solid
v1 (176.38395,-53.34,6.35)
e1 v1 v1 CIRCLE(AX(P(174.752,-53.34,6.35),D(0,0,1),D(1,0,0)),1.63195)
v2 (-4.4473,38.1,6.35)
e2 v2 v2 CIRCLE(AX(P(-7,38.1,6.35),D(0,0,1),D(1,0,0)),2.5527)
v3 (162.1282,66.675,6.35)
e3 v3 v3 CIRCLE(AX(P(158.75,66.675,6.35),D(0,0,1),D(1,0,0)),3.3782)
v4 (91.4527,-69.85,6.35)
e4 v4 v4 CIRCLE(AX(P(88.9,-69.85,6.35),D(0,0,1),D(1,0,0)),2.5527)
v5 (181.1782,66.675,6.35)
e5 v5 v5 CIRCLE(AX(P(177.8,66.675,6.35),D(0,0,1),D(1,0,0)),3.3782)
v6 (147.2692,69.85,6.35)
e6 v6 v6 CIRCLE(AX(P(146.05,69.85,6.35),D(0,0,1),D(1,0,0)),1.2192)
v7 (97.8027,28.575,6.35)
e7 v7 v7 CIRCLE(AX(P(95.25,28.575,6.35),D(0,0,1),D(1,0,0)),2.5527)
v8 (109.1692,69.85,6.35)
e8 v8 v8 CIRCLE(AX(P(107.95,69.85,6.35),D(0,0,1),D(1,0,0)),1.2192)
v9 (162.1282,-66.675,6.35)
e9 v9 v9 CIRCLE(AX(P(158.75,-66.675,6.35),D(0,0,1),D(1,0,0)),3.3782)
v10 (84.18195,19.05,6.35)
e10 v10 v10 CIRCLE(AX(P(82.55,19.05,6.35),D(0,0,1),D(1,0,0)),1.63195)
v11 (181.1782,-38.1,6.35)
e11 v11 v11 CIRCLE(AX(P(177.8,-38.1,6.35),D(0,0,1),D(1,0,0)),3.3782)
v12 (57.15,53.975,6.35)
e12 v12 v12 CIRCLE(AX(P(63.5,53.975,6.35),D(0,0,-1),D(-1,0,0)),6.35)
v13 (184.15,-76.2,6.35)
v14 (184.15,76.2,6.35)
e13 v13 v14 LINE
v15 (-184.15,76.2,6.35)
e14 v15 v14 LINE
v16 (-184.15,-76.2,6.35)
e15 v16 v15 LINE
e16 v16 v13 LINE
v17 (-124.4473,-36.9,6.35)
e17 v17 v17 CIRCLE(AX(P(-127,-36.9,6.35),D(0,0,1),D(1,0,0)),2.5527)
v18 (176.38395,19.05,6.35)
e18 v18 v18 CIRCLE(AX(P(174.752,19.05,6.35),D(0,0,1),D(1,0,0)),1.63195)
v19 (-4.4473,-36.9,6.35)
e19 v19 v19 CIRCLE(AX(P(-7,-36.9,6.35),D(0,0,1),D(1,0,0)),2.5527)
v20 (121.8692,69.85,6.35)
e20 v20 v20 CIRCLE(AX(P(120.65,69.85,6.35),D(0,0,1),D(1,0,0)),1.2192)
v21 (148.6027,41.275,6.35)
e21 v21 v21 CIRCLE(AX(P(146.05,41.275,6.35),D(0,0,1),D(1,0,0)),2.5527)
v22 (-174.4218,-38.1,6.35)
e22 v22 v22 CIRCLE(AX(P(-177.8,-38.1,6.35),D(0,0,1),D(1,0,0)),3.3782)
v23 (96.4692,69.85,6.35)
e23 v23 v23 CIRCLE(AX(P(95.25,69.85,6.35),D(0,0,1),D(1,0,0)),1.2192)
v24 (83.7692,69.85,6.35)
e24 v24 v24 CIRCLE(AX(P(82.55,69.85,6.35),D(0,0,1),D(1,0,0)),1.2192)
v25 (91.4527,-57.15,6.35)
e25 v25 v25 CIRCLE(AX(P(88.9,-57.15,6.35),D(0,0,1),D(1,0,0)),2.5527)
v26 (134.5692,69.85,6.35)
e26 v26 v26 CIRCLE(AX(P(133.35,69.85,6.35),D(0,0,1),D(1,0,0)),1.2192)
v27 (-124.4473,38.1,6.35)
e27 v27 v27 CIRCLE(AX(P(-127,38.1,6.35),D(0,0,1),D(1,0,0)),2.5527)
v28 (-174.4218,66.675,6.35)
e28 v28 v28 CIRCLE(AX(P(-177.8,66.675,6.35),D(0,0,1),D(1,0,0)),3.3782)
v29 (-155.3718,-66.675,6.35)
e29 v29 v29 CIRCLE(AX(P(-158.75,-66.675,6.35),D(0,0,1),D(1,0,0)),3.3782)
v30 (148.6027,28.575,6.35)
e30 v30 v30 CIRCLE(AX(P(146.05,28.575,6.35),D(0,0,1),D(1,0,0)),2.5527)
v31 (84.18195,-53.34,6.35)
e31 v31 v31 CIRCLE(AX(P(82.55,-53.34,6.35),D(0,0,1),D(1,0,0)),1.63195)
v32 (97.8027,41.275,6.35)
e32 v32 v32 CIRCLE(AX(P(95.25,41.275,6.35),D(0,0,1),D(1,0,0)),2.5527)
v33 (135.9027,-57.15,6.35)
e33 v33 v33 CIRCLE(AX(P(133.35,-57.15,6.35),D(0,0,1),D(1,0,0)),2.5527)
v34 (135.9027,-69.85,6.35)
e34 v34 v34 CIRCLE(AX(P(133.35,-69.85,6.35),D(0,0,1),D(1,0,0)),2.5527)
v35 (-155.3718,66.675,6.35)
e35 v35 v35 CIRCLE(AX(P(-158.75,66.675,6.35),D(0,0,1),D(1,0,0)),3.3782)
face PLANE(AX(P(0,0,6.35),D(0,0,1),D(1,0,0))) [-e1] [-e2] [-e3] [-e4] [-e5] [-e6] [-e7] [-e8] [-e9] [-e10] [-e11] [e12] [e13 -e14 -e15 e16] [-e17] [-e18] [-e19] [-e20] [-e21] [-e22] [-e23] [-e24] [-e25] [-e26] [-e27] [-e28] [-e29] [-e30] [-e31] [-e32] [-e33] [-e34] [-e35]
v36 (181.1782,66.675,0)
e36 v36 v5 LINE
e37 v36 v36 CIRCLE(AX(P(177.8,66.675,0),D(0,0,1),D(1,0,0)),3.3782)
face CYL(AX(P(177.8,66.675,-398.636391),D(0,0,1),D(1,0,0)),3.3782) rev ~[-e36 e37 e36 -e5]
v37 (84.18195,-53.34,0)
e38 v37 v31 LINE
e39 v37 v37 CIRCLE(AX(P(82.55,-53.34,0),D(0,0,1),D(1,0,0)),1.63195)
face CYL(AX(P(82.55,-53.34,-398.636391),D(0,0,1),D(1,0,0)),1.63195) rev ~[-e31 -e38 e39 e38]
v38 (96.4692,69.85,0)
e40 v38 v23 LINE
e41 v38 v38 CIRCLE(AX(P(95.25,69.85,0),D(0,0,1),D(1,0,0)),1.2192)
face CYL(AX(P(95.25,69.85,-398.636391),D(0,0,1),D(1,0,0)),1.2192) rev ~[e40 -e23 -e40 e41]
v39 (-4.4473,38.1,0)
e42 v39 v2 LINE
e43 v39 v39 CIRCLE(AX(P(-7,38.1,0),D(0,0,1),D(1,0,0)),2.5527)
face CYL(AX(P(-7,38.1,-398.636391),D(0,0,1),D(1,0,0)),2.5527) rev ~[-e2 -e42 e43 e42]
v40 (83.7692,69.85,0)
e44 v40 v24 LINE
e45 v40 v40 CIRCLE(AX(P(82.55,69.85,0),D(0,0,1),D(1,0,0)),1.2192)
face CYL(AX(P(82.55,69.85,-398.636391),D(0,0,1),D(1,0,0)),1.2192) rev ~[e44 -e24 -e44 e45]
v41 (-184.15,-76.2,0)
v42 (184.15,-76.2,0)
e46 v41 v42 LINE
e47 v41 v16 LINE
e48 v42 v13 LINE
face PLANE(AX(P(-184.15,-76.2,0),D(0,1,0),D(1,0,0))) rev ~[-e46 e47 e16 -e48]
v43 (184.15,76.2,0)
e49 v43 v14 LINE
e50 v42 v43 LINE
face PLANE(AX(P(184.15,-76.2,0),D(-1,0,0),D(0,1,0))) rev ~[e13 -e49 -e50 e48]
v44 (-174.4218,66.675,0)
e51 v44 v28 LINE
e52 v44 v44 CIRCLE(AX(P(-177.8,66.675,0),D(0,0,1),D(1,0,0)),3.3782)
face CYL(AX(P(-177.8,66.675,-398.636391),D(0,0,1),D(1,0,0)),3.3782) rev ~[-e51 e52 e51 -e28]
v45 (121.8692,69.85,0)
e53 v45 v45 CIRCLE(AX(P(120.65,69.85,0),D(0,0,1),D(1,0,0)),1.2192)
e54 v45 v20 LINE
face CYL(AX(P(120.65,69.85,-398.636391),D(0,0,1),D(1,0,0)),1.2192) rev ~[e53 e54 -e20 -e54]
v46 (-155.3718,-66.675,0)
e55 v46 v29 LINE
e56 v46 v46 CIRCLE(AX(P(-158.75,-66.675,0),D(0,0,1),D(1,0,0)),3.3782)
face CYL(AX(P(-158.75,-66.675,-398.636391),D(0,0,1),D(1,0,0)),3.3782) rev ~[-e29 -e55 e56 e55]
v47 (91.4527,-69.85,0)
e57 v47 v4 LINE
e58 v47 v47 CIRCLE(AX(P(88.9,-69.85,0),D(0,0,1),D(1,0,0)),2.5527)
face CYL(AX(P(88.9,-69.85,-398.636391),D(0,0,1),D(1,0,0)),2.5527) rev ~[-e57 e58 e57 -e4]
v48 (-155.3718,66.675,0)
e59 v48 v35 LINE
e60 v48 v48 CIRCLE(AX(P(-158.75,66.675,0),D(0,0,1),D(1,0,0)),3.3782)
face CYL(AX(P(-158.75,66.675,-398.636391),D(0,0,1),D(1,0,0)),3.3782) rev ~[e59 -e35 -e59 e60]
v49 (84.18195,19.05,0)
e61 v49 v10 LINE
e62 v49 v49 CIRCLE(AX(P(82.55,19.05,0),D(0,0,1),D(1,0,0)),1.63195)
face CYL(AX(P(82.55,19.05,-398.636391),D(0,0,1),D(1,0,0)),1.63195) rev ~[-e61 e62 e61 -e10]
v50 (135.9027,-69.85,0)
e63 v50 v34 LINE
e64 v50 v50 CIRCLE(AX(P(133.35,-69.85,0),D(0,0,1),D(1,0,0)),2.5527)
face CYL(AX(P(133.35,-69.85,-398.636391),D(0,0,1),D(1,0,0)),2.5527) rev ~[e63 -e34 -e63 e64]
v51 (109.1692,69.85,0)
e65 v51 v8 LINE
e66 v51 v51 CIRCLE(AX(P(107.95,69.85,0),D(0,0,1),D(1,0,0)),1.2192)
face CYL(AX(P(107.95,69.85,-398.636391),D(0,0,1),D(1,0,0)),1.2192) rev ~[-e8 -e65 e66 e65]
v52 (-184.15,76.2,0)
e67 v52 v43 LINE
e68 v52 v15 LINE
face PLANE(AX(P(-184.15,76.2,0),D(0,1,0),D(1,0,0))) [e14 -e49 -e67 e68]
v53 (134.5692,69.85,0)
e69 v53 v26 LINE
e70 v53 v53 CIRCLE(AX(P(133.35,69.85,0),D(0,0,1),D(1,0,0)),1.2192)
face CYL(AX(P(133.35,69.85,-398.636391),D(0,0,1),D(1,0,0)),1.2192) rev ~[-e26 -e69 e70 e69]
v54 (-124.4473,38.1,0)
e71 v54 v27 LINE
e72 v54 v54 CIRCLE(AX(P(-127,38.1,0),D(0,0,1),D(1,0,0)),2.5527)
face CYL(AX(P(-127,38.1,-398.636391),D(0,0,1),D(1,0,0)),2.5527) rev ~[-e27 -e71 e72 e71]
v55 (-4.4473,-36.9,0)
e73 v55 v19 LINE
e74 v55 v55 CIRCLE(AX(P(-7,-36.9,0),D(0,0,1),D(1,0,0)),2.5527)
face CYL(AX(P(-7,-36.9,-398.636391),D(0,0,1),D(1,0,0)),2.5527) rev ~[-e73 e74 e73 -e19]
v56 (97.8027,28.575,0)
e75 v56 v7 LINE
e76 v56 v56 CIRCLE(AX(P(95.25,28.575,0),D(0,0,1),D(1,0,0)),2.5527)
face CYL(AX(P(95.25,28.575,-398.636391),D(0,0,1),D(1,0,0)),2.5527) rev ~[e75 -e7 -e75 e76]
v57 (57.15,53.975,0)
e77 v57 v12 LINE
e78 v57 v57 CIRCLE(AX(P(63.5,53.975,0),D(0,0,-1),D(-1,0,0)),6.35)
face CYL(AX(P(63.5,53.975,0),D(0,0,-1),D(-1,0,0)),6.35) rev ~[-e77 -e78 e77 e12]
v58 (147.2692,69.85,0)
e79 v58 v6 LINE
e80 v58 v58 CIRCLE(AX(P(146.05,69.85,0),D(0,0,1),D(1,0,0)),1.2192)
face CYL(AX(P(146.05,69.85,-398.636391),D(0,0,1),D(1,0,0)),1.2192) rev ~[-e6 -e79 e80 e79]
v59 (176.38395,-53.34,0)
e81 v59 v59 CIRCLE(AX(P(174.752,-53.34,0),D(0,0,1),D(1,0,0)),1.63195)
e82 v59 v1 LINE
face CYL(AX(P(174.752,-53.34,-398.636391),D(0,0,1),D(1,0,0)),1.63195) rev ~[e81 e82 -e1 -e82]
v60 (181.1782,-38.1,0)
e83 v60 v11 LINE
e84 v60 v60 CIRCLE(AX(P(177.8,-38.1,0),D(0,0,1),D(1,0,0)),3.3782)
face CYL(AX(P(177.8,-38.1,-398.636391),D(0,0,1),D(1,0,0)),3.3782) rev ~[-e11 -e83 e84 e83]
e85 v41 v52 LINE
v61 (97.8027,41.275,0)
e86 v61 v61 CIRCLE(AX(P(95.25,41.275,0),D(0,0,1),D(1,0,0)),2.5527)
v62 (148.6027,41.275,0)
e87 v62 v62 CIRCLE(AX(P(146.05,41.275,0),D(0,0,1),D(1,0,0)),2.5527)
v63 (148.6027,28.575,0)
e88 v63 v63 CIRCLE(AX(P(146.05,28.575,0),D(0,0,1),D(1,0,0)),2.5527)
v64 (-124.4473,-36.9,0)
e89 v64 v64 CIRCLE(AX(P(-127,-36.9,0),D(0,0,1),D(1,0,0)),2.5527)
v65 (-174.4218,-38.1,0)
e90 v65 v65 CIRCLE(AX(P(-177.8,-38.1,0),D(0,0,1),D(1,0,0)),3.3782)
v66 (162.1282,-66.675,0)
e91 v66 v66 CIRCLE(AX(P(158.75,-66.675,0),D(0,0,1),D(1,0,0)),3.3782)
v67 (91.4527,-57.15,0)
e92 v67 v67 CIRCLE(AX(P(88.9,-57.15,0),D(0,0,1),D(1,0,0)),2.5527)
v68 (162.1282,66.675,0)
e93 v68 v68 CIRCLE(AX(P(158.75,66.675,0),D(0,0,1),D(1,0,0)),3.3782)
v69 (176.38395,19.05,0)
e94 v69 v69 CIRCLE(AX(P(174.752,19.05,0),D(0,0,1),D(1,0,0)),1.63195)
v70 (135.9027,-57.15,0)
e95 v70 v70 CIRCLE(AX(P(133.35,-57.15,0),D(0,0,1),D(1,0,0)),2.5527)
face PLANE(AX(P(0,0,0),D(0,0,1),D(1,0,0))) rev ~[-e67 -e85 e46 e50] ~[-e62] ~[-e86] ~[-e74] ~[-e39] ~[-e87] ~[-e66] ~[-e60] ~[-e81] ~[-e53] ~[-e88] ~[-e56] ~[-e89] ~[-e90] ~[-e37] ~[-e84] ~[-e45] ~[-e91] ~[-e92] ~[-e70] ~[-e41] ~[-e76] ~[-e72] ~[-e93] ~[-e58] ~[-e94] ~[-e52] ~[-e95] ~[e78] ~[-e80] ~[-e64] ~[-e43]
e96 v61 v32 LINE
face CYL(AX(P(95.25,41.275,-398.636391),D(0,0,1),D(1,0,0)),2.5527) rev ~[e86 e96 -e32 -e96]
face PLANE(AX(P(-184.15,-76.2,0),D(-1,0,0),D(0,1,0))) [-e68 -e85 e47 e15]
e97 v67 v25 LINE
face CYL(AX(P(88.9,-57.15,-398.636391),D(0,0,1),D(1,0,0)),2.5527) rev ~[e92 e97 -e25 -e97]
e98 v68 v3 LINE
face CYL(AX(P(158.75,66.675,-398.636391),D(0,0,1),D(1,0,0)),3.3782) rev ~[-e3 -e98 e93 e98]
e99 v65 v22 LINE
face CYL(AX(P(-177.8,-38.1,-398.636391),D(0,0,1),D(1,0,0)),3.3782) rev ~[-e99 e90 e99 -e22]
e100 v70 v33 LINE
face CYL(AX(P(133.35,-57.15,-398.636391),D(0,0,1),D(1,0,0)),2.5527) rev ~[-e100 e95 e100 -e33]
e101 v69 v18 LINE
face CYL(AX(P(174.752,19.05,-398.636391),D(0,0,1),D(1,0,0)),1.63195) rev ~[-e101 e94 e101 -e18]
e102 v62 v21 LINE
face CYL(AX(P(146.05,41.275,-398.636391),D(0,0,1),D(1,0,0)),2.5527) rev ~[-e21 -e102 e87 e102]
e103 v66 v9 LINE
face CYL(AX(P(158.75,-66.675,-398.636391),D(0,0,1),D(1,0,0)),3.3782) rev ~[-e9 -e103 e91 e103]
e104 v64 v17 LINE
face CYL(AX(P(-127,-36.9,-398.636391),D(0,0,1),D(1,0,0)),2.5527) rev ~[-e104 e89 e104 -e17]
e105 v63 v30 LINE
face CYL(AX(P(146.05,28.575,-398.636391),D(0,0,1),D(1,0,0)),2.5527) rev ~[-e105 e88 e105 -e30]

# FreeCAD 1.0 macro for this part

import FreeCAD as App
import Part
import Sketcher
from FreeCAD import Vector
Q = App.Units.Quantity

doc = App.newDocument("Part")
body = doc.addObject("PartDesign::Body", "Body")

sketch1 = doc.addObject("Sketcher::SketchObject", "Sketch")
body.addObject(sketch1)
sketch1.AttachmentSupport = (doc.XY_Plane, [""])
sketch1.MapMode = "FlatFace"
sketch1.addGeometry([
    Part.LineSegment(Vector(-184, 76, 0), Vector(-184, -76, 0)),
    Part.LineSegment(Vector(-184, -76, 0), Vector(184, -76, 0)),
    Part.LineSegment(Vector(184, -76, 0), Vector(184, 76, 0)),
    Part.LineSegment(Vector(184, 76, 0), Vector(-184, 76, 0)),
], False)
sketch1.addConstraint([
    Sketcher.Constraint("Coincident", 0, 2, 1, 1),
    Sketcher.Constraint("Coincident", 1, 2, 2, 1),
    Sketcher.Constraint("Coincident", 2, 2, 3, 1),
    Sketcher.Constraint("Coincident", 3, 2, 0, 1),
    Sketcher.Constraint("Vertical", 0),
    Sketcher.Constraint("Horizontal", 1),
    Sketcher.Constraint("Vertical", 2),
    Sketcher.Constraint("Horizontal", 3),
    Sketcher.Constraint("Symmetric", 0, 2, 2, 2, -1, 1),
    Sketcher.Constraint("DistanceY", 0, 2, 0, 1, Q("6 in")),
    Sketcher.Constraint("DistanceX", 1, 1, 1, 2, Q("14.5 in")),
])
pad1 = doc.addObject("PartDesign::Pad", "Pad")
body.addObject(pad1)
pad1.Profile = sketch1
pad1.Length = Q("0.25 in")

sketch2 = doc.addObject("Sketcher::SketchObject", "Sketch001")
body.addObject(sketch2)
sketch2.AttachmentSupport = (doc.XY_Plane, [""])
sketch2.MapMode = "FlatFace"
sketch2.addGeometry([
    Part.Circle(Vector(174.8, 19.1, 0), Vector(0, 0, 1), 1.6),
    Part.Circle(Vector(82.5, -53.3, 0), Vector(0, 0, 1), 1.6),
    Part.Circle(Vector(174.8, -53.3, 0), Vector(0, 0, 1), 1.6),
    Part.Circle(Vector(82.5, 19.1, 0), Vector(0, 0, 1), 1.6),
], False)
sketch2.addConstraint([
    Sketcher.Constraint("Equal", 0, 1),
    Sketcher.Constraint("Equal", 1, 2),
    Sketcher.Constraint("Equal", 2, 3),
    Sketcher.Constraint("Horizontal", 1, 3, 2, 3),
    Sketcher.Constraint("Horizontal", 0, 3, 3, 3),
    Sketcher.Constraint("Vertical", 0, 3, 2, 3),
    Sketcher.Constraint("Vertical", 1, 3, 3, 3),
    Sketcher.Constraint("Diameter", 0, Q("0.1285 in")),
    Sketcher.Constraint("DistanceY", 1, 3, -1, 1, Q("2.1 in")),
    Sketcher.Constraint("DistanceX", -1, 1, 0, 3, Q("6.88 in")),
    Sketcher.Constraint("DistanceY", -1, 1, 0, 3, Q("0.75 in")),
    Sketcher.Constraint("DistanceX", -1, 1, 1, 3, Q("3.25 in")),
])
doc.recompute()
hole = doc.addObject("PartDesign::Hole", "Hole")
body.addObject(hole)
hole.Profile = sketch2
hole.ThreadType = "None"
hole.Diameter = Q("0.1285 in")
hole.DepthType = "ThroughAll"
hole.Reversed = True

sketch3 = doc.addObject("Sketcher::SketchObject", "Sketch002")
body.addObject(sketch3)
sketch3.AttachmentSupport = (doc.XY_Plane, [""])
sketch3.MapMode = "FlatFace"
sketch3.addGeometry([
    Part.Circle(Vector(158.8, 66.7, 0), Vector(0, 0, 1), 3.4),
    Part.Circle(Vector(-158.8, -66.7, 0), Vector(0, 0, 1), 3.4),
    Part.Circle(Vector(158.8, -66.7, 0), Vector(0, 0, 1), 3.4),
    Part.Circle(Vector(-158.8, 66.7, 0), Vector(0, 0, 1), 3.4),
], False)
sketch3.addConstraint([
    Sketcher.Constraint("Equal", 0, 1),
    Sketcher.Constraint("Equal", 1, 2),
    Sketcher.Constraint("Equal", 2, 3),
    Sketcher.Constraint("Symmetric", 0, 3, 1, 3, -1, 1),
    Sketcher.Constraint("Symmetric", 2, 3, 3, 3, -1, 1),
    Sketcher.Constraint("Symmetric", 1, 3, 2, 3, -2),
    Sketcher.Constraint("Diameter", 0, Q("0.266 in")),
    Sketcher.Constraint("DistanceX", 1, 3, 0, 3, Q("12.5 in")),
    Sketcher.Constraint("DistanceY", 1, 3, 0, 3, Q("5.25 in")),
])
doc.recompute()
hole2 = doc.addObject("PartDesign::Hole", "Hole001")
body.addObject(hole2)
hole2.Profile = sketch3
hole2.ThreadType = "None"
hole2.Diameter = Q("0.266 in")
hole2.DepthType = "ThroughAll"
hole2.Reversed = True

sketch4 = doc.addObject("Sketcher::SketchObject", "Sketch003")
body.addObject(sketch4)
sketch4.AttachmentSupport = (doc.XY_Plane, [""])
sketch4.MapMode = "FlatFace"
sketch4.addGeometry([
    Part.Circle(Vector(177.8, 66.7, 0), Vector(0, 0, 1), 3.4),
    Part.Circle(Vector(-177.8, -38.1, 0), Vector(0, 0, 1), 3.4),
    Part.Circle(Vector(177.8, -38.1, 0), Vector(0, 0, 1), 3.4),
    Part.Circle(Vector(-177.8, 66.7, 0), Vector(0, 0, 1), 3.4),
], False)
sketch4.addConstraint([
    Sketcher.Constraint("Equal", 0, 1),
    Sketcher.Constraint("Equal", 1, 2),
    Sketcher.Constraint("Equal", 2, 3),
    Sketcher.Constraint("Symmetric", 1, 3, 2, 3, -2),
    Sketcher.Constraint("Symmetric", 0, 3, 3, 3, -2),
    Sketcher.Constraint("Vertical", 0, 3, 2, 3),
    Sketcher.Constraint("Diameter", 0, Q("0.266 in")),
    Sketcher.Constraint("DistanceX", -1, 1, 0, 3, Q("7 in")),
    Sketcher.Constraint("DistanceY", 1, 3, -1, 1, Q("1.5 in")),
    Sketcher.Constraint("DistanceY", -1, 1, 0, 3, Q("2.625 in")),
])
doc.recompute()
hole3 = doc.addObject("PartDesign::Hole", "Hole002")
body.addObject(hole3)
hole3.Profile = sketch4
hole3.ThreadType = "None"
hole3.Diameter = Q("0.266 in")
hole3.DepthType = "ThroughAll"
hole3.Reversed = True

sketch5 = doc.addObject("Sketcher::SketchObject", "Sketch004")
body.addObject(sketch5)
sketch5.AttachmentSupport = (doc.XY_Plane, [""])
sketch5.MapMode = "FlatFace"
sketch5.addGeometry(Part.Circle(Vector(64, 54, 0), Vector(0, 0, 1), 6), False)
sketch5.addConstraint([
    Sketcher.Constraint("Diameter", 0, Q("0.5 in")),
    Sketcher.Constraint("DistanceX", -1, 1, 0, 3, Q("2.5 in")),
    Sketcher.Constraint("DistanceY", -1, 1, 0, 3, Q("2.125 in")),
])
pocket1 = doc.addObject("PartDesign::Pocket", "Pocket")
body.addObject(pocket1)
pocket1.Profile = sketch5
pocket1.Type = "ThroughAll"
pocket1.Reversed = True

sketch6 = doc.addObject("Sketcher::SketchObject", "Sketch005")
body.addObject(sketch6)
sketch6.AttachmentSupport = (doc.XY_Plane, [""])
sketch6.MapMode = "FlatFace"
sketch6.addGeometry([
    Part.Circle(Vector(133.3, 69.8, 0), Vector(0, 0, 1), 1.2),
    Part.Circle(Vector(146.1, 69.8, 0), Vector(0, 0, 1), 1.2),
    Part.Circle(Vector(120.7, 69.8, 0), Vector(0, 0, 1), 1.2),
    Part.Circle(Vector(108, 69.8, 0), Vector(0, 0, 1), 1.2),
    Part.Circle(Vector(95.2, 69.8, 0), Vector(0, 0, 1), 1.2),
    Part.Circle(Vector(82.5, 69.8, 0), Vector(0, 0, 1), 1.2),
], False)
sketch6.addConstraint([
    Sketcher.Constraint("Equal", 0, 1),
    Sketcher.Constraint("Equal", 1, 2),
    Sketcher.Constraint("Equal", 2, 3),
    Sketcher.Constraint("Equal", 3, 4),
    Sketcher.Constraint("Equal", 4, 5),
    Sketcher.Constraint("Horizontal", 0, 3, 1, 3),
    Sketcher.Constraint("Horizontal", 1, 3, 2, 3),
    Sketcher.Constraint("Horizontal", 2, 3, 3, 3),
    Sketcher.Constraint("Horizontal", 3, 3, 4, 3),
    Sketcher.Constraint("Horizontal", 4, 3, 5, 3),
    Sketcher.Constraint("Diameter", 0, Q("0.096 in")),
    Sketcher.Constraint("DistanceX", 2, 3, 1, 3, Q("1 in")),
    Sketcher.Constraint("DistanceX", 3, 3, 0, 3, Q("1 in")),
    Sketcher.Constraint("DistanceX", 4, 3, 2, 3, Q("1 in")),
    Sketcher.Constraint("DistanceX", 5, 3, 3, 3, Q("1 in")),
    Sketcher.Constraint("DistanceX", 0, 3, 1, 3, Q("0.5 in")),
    Sketcher.Constraint("DistanceX", -1, 1, 0, 3, Q("5.25 in")),
    Sketcher.Constraint("DistanceY", -1, 1, 0, 3, Q("2.75 in")),
])
doc.recompute()
hole4 = doc.addObject("PartDesign::Hole", "Hole003")
body.addObject(hole4)
hole4.Profile = sketch6
hole4.ThreadType = "None"
hole4.Diameter = Q("0.096 in")
hole4.DepthType = "ThroughAll"
hole4.Reversed = True

sketch7 = doc.addObject("Sketcher::SketchObject", "Sketch006")
body.addObject(sketch7)
sketch7.AttachmentSupport = (doc.XY_Plane, [""])
sketch7.MapMode = "FlatFace"
sketch7.addGeometry([
    Part.Circle(Vector(146.1, 41.3, 0), Vector(0, 0, 1), 2.6),
    Part.Circle(Vector(146.1, 28.6, 0), Vector(0, 0, 1), 2.6),
    Part.Circle(Vector(95.2, 41.3, 0), Vector(0, 0, 1), 2.6),
    Part.Circle(Vector(95.2, 28.6, 0), Vector(0, 0, 1), 2.6),
], False)
sketch7.addConstraint([
    Sketcher.Constraint("Equal", 0, 1),
    Sketcher.Constraint("Equal", 1, 2),
    Sketcher.Constraint("Equal", 2, 3),
    Sketcher.Constraint("Horizontal", 0, 3, 2, 3),
    Sketcher.Constraint("Horizontal", 1, 3, 3, 3),
    Sketcher.Constraint("Vertical", 0, 3, 1, 3),
    Sketcher.Constraint("Vertical", 2, 3, 3, 3),
    Sketcher.Constraint("Diameter", 0, Q("0.201 in")),
    Sketcher.Constraint("DistanceX", 2, 3, 0, 3, Q("2 in")),
    Sketcher.Constraint("DistanceY", 1, 3, 0, 3, Q("0.5 in")),
    Sketcher.Constraint("DistanceX", -1, 1, 0, 3, Q("5.75 in")),
    Sketcher.Constraint("DistanceY", -1, 1, 0, 3, Q("1.625 in")),
])
doc.recompute()
hole5 = doc.addObject("PartDesign::Hole", "Hole004")
body.addObject(hole5)
hole5.Profile = sketch7
hole5.ThreadType = "None"
hole5.Diameter = Q("0.201 in")
hole5.DepthType = "ThroughAll"
hole5.Reversed = True

sketch8 = doc.addObject("Sketcher::SketchObject", "Sketch007")
body.addObject(sketch8)
sketch8.AttachmentSupport = (doc.XY_Plane, [""])
sketch8.MapMode = "FlatFace"
sketch8.addGeometry([
    Part.Circle(Vector(-7, 38.1, 0), Vector(0, 0, 1), 2.6),
    Part.Circle(Vector(-127, -36.9, 0), Vector(0, 0, 1), 2.6),
    Part.Circle(Vector(-7, -36.9, 0), Vector(0, 0, 1), 2.6),
    Part.Circle(Vector(-127, 38.1, 0), Vector(0, 0, 1), 2.6),
], False)
sketch8.addConstraint([
    Sketcher.Constraint("Equal", 0, 1),
    Sketcher.Constraint("Equal", 1, 2),
    Sketcher.Constraint("Equal", 2, 3),
    Sketcher.Constraint("Horizontal", 1, 3, 2, 3),
    Sketcher.Constraint("Horizontal", 0, 3, 3, 3),
    Sketcher.Constraint("Vertical", 0, 3, 2, 3),
    Sketcher.Constraint("Vertical", 1, 3, 3, 3),
    Sketcher.Constraint("Diameter", 0, Q("0.201 in")),
    Sketcher.Constraint("DistanceX", 1, 3, -1, 1, Q("5 in")),
    Sketcher.Constraint("DistanceY", -1, 1, 0, 3, Q("1.5 in")),
    Sketcher.Constraint("DistanceX", 0, 3, -1, 1, 7.0),
    Sketcher.Constraint("DistanceY", 1, 3, -1, 1, 36.9),
])
doc.recompute()
hole6 = doc.addObject("PartDesign::Hole", "Hole005")
body.addObject(hole6)
hole6.Profile = sketch8
hole6.ThreadType = "None"
hole6.Diameter = Q("0.201 in")
hole6.DepthType = "ThroughAll"
hole6.Reversed = True

sketch9 = doc.addObject("Sketcher::SketchObject", "Sketch008")
body.addObject(sketch9)
sketch9.AttachmentSupport = (doc.XY_Plane, [""])
sketch9.MapMode = "FlatFace"
sketch9.addGeometry([
    Part.Circle(Vector(133.3, -57.1, 0), Vector(0, 0, 1), 2.6),
    Part.Circle(Vector(88.9, -69.8, 0), Vector(0, 0, 1), 2.6),
    Part.Circle(Vector(133.3, -69.8, 0), Vector(0, 0, 1), 2.6),
    Part.Circle(Vector(88.9, -57.1, 0), Vector(0, 0, 1), 2.6),
], False)
sketch9.addConstraint([
    Sketcher.Constraint("Equal", 0, 1),
    Sketcher.Constraint("Equal", 1, 2),
    Sketcher.Constraint("Equal", 2, 3),
    Sketcher.Constraint("Horizontal", 1, 3, 2, 3),
    Sketcher.Constraint("Horizontal", 0, 3, 3, 3),
    Sketcher.Constraint("Vertical", 0, 3, 2, 3),
    Sketcher.Constraint("Vertical", 1, 3, 3, 3),
    Sketcher.Constraint("Diameter", 0, Q("0.201 in")),
    Sketcher.Constraint("DistanceX", -1, 1, 1, 3, Q("3.5 in")),
    Sketcher.Constraint("DistanceY", 1, 3, 0, 3, Q("0.5 in")),
    Sketcher.Constraint("DistanceX", -1, 1, 0, 3, Q("5.25 in")),
    Sketcher.Constraint("DistanceY", 0, 3, -1, 1, Q("2.25 in")),
])
doc.recompute()
hole7 = doc.addObject("PartDesign::Hole", "Hole006")
body.addObject(hole7)
hole7.Profile = sketch9
hole7.ThreadType = "None"
hole7.Diameter = Q("0.201 in")
hole7.DepthType = "ThroughAll"
hole7.Reversed = True

doc.recompute()
